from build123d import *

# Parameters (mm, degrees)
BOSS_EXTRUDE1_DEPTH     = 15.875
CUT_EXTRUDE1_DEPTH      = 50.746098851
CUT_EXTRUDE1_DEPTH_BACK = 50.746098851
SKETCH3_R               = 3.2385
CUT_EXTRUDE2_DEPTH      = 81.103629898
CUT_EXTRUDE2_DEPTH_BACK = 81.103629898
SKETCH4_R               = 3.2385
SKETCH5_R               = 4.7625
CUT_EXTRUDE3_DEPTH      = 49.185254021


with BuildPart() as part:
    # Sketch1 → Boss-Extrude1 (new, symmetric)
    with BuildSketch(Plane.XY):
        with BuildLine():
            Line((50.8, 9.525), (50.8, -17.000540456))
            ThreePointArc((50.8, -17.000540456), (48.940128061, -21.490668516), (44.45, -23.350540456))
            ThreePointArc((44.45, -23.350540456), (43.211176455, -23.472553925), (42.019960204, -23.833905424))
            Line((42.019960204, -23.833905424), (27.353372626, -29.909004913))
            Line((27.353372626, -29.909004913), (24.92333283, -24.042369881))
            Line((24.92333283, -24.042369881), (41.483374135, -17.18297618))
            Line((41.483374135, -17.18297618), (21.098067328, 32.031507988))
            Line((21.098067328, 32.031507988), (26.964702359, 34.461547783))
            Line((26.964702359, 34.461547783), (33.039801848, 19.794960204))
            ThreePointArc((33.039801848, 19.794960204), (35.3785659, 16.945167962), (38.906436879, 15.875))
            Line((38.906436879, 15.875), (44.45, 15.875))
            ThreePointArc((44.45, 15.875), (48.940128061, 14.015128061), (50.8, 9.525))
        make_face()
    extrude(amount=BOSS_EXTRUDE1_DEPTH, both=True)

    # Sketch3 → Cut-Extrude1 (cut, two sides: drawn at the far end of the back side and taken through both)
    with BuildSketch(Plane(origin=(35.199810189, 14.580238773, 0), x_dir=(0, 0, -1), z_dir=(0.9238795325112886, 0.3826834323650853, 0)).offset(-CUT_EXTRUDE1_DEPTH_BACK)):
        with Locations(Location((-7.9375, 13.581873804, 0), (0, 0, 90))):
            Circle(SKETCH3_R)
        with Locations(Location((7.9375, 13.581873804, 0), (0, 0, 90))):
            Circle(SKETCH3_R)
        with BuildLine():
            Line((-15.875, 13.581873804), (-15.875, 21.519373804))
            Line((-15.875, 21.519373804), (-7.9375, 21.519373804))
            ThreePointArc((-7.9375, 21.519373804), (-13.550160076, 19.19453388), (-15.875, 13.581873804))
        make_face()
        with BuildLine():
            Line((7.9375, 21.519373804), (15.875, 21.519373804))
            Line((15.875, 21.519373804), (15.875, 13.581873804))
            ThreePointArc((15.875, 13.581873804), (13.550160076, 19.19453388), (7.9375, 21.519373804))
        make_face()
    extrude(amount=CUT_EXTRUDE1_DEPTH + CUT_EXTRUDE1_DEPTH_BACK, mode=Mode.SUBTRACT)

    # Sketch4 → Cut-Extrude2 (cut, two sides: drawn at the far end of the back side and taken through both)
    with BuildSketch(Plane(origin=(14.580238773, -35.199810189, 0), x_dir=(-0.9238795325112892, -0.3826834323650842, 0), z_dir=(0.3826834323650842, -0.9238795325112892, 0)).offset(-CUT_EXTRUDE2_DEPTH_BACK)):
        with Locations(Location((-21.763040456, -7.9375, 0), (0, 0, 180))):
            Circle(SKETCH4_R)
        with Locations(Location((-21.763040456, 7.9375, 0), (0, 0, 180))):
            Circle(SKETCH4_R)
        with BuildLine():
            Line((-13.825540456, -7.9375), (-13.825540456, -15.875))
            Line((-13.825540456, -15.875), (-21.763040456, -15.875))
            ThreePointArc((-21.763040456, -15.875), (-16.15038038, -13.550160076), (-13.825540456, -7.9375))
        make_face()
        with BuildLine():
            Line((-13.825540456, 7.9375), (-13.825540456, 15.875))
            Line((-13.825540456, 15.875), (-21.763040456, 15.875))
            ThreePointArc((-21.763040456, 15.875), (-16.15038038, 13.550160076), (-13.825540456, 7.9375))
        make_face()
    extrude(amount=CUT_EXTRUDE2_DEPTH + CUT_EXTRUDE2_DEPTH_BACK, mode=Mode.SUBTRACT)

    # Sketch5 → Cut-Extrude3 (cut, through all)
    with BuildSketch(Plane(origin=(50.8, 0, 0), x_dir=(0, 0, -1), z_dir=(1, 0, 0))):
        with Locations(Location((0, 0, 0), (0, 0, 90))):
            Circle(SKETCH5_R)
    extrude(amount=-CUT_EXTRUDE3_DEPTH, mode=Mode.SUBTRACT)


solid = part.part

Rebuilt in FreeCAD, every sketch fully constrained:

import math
import FreeCAD as App
import Part
import Sketcher

V = App.Vector
Q = App.Units.Quantity

doc = App.newDocument("Part")
body = doc.addObject("PartDesign::Body", "Body")

sketch1 = doc.addObject("Sketcher::SketchObject", "Sketch")
body.addObject(sketch1)
sketch1.AttachmentSupport = (doc.XY_Plane, [""])
sketch1.MapMode = "FlatFace"
sketch1.addGeometry([
    Part.LineSegment(V(50.8, -17, 0), V(50.8, 9.5, 0)),
    Part.ArcOfCircle(Part.Circle(V(44.5, 9.5, 0), V(0, 0, 1), 6.3), math.radians(0), math.radians(90)),
    Part.LineSegment(V(44.5, 15.9, 0), V(38.9, 15.9, 0)),
    Part.ArcOfCircle(Part.Circle(V(38.9, 22.2, 0), V(0, 0, 1), 6.4), math.radians(-157), math.radians(-90)),
    Part.LineSegment(V(33, 19.8, 0), V(27, 34.5, 0)),
    Part.LineSegment(V(27, 34.5, 0), V(21.1, 32, 0)),
    Part.LineSegment(V(21.1, 32, 0), V(41.5, -17.2, 0)),
    Part.LineSegment(V(41.5, -17.2, 0), V(24.9, -24, 0)),
    Part.LineSegment(V(24.9, -24, 0), V(27.4, -29.9, 0)),
    Part.LineSegment(V(27.4, -29.9, 0), V(42, -23.8, 0)),
    Part.ArcOfCircle(Part.Circle(V(44.4, -29.7, 0), V(0, 0, 1), 6.3), math.radians(90), math.radians(112)),
    Part.ArcOfCircle(Part.Circle(V(44.5, -17, 0), V(0, 0, 1), 6.3), math.radians(-90), math.radians(0)),
], False)
sketch1.addConstraint([
    Sketcher.Constraint("Tangent", 0, 2, 1, 1),
    Sketcher.Constraint("Tangent", 1, 2, 2, 1),
    Sketcher.Constraint("Tangent", 2, 2, 3, 2),
    Sketcher.Constraint("Tangent", 3, 1, 4, 1),
    Sketcher.Constraint("Coincident", 4, 2, 5, 1),
    Sketcher.Constraint("Coincident", 5, 2, 6, 1),
    Sketcher.Constraint("Coincident", 6, 2, 7, 1),
    Sketcher.Constraint("Coincident", 7, 2, 8, 1),
    Sketcher.Constraint("Coincident", 8, 2, 9, 1),
    Sketcher.Constraint("Tangent", 9, 2, 10, 2),
    Sketcher.Constraint("Tangent", 10, 1, 11, 1),
    Sketcher.Constraint("Tangent", 11, 2, 0, 1),
    Sketcher.Constraint("Vertical", 0),
    Sketcher.Constraint("Horizontal", 2),
    Sketcher.Constraint("Equal", 1, 3),
    Sketcher.Constraint("Equal", 3, 10),
    Sketcher.Constraint("Equal", 10, 11),
    Sketcher.Constraint("Perpendicular", 4, 5),
    Sketcher.Constraint("Perpendicular", 5, 6),
    Sketcher.Constraint("Perpendicular", 6, 7),
    Sketcher.Constraint("Perpendicular", 7, 8),
    Sketcher.Constraint("Perpendicular", 8, 9),
    Sketcher.Constraint("Vertical", 1, 3, 10, 3),
    Sketcher.Constraint("Equal", 5, 8),
    Sketcher.Constraint("Equal", 4, 9),
    Sketcher.Constraint("Radius", 1, Q("0.25 in")),
    Sketcher.Constraint("DistanceX", -1, 1, 0, 2, Q("2 in")),
    Sketcher.Constraint("Angle", 4, Q("112.5 deg")),
    Sketcher.Constraint("Distance", 5, Q("0.25 in")),
    Sketcher.Constraint("Distance", 4, Q("0.625 in")),
    Sketcher.Constraint("DistanceY", -1, 1, 1, 3, Q("0.375 in")),
    Sketcher.Constraint("DistanceY", 0, 1, 0, 2, Q("26.52554 mm")),
    Sketcher.Constraint("DistanceX", -1, 1, 3, 1, Q("33.039802 mm")),
])
pad1 = doc.addObject("PartDesign::Pad", "Pad")
body.addObject(pad1)
pad1.Profile = sketch1
pad1.Length = Q("1.25 in")
pad1.Midplane = True

sketch2 = doc.addObject("Sketcher::SketchObject", "Sketch001")
body.addObject(sketch2)
sketch2.Placement = App.Placement(V(35.19981, 14.580239, 0), App.Rotation(V(0, 0, -1), V(-0.382683432, 0.923879533, 0), V(0.923879533, 0.382683432, 0), "ZXY"))
sketch2.addGeometry([
    Part.Circle(V(-7.9, 13.6, 0), V(0, 0, 1), 3.2),
    Part.Circle(V(7.9, 13.6, 0), V(0, 0, 1), 3.2),
    Part.LineSegment(V(-15.9, 21.5, 0), V(-15.9, 13.6, 0)),
    Part.ArcOfCircle(Part.Circle(V(-7.9, 13.6, 0), V(0, 0, 1), 7.9), math.radians(90), math.radians(180)),
    Part.LineSegment(V(-7.9, 21.5, 0), V(-15.9, 21.5, 0)),
    Part.LineSegment(V(15.9, 21.5, 0), V(7.9, 21.5, 0)),
    Part.ArcOfCircle(Part.Circle(V(7.9, 13.6, 0), V(0, 0, 1), 7.9), math.radians(0), math.radians(90)),
    Part.LineSegment(V(15.9, 13.6, 0), V(15.9, 21.5, 0)),
], False)
sketch2.addConstraint([
    Sketcher.Constraint("Tangent", 2, 2, 3, 2),
    Sketcher.Constraint("Tangent", 3, 1, 4, 1),
    Sketcher.Constraint("Coincident", 4, 2, 2, 1),
    Sketcher.Constraint("Tangent", 5, 2, 6, 2),
    Sketcher.Constraint("Tangent", 6, 1, 7, 1),
    Sketcher.Constraint("Coincident", 7, 2, 5, 1),
    Sketcher.Constraint("Vertical", 2),
    Sketcher.Constraint("Horizontal", 4),
    Sketcher.Constraint("Horizontal", 5),
    Sketcher.Constraint("Vertical", 7),
    Sketcher.Constraint("Coincident", 3, 3, 0, 3),
    Sketcher.Constraint("Coincident", 6, 3, 1, 3),
    Sketcher.Constraint("Equal", 0, 1),
    Sketcher.Constraint("Equal", 3, 6),
    Sketcher.Constraint("Symmetric", 0, 3, 1, 3, -2),
    Sketcher.Constraint("Diameter", 0, Q("0.255 in")),
    Sketcher.Constraint("Radius", 3, Q("0.3125 in")),
    Sketcher.Constraint("DistanceX", 0, 3, -1, 1, Q("0.3125 in")),
    Sketcher.Constraint("DistanceY", -1, 1, 0, 3, Q("13.581874 mm")),
])
pocket1 = doc.addObject("PartDesign::Pocket", "Pocket")
body.addObject(pocket1)
pocket1.Profile = sketch2
pocket1.Type = "ThroughAll"
pocket1.Midplane = True

sketch3 = doc.addObject("Sketcher::SketchObject", "Sketch002")
body.addObject(sketch3)
sketch3.Placement = App.Placement(V(14.580239, -35.19981, 0), App.Rotation(V(-0.923879533, -0.382683432, 0), V(0, 0, -1.000000001), V(0.382683432, -0.923879533, 0), "ZXY"))
sketch3.addGeometry([
    Part.Circle(V(-21.8, -7.9, 0), V(0, 0, 1), 3.2),
    Part.Circle(V(-21.8, 7.9, 0), V(0, 0, 1), 3.2),
    Part.LineSegment(V(-13.8, -15.9, 0), V(-13.8, -7.9, 0)),
    Part.ArcOfCircle(Part.Circle(V(-21.8, -7.9, 0), V(0, 0, 1), 7.9), math.radians(-90), math.radians(0)),
    Part.LineSegment(V(-21.8, -15.9, 0), V(-13.8, -15.9, 0)),
    Part.LineSegment(V(-13.8, 7.9, 0), V(-13.8, 15.9, 0)),
    Part.LineSegment(V(-13.8, 15.9, 0), V(-21.8, 15.9, 0)),
    Part.ArcOfCircle(Part.Circle(V(-21.8, 7.9, 0), V(0, 0, 1), 7.9), math.radians(0), math.radians(90)),
], False)
sketch3.addConstraint([
    Sketcher.Constraint("Tangent", 2, 2, 3, 2),
    Sketcher.Constraint("Tangent", 3, 1, 4, 1),
    Sketcher.Constraint("Coincident", 4, 2, 2, 1),
    Sketcher.Constraint("Coincident", 5, 2, 6, 1),
    Sketcher.Constraint("Tangent", 6, 2, 7, 2),
    Sketcher.Constraint("Tangent", 7, 1, 5, 1),
    Sketcher.Constraint("Vertical", 2),
    Sketcher.Constraint("Horizontal", 4),
    Sketcher.Constraint("Vertical", 5),
    Sketcher.Constraint("Horizontal", 6),
    Sketcher.Constraint("Coincident", 3, 3, 0, 3),
    Sketcher.Constraint("Coincident", 7, 3, 1, 3),
    Sketcher.Constraint("Equal", 0, 1),
    Sketcher.Constraint("Equal", 3, 7),
    Sketcher.Constraint("Symmetric", 0, 3, 1, 3, -1),
    Sketcher.Constraint("Diameter", 0, Q("0.255 in")),
    Sketcher.Constraint("Radius", 3, Q("0.3125 in")),
    Sketcher.Constraint("DistanceY", 0, 3, -1, 1, Q("0.3125 in")),
    Sketcher.Constraint("DistanceX", 0, 3, -1, 1, Q("21.76304 mm")),
])
pocket2 = doc.addObject("PartDesign::Pocket", "Pocket001")
body.addObject(pocket2)
pocket2.Profile = sketch3
pocket2.Type = "ThroughAll"
pocket2.Midplane = True

sketch4 = doc.addObject("Sketcher::SketchObject", "Sketch003")
body.addObject(sketch4)
sketch4.AttachmentSupport = (doc.YZ_Plane, [""])
sketch4.MapMode = "FlatFace"
sketch4.AttachmentOffset = App.Placement(V(0, 0, 2 * 25.4), App.Rotation())
sketch4.addGeometry(Part.Circle(V(0, 0, 0), V(0, 0, 1), 4.8), False)
sketch4.addConstraint([
    Sketcher.Constraint("Coincident", 0, 3, -1, 1),
    Sketcher.Constraint("Diameter", 0, Q("0.375 in")),
])
pocket3 = doc.addObject("PartDesign::Pocket", "Pocket002")
body.addObject(pocket3)
pocket3.Profile = sketch4
pocket3.Type = "ThroughAll"

doc.recompute()
